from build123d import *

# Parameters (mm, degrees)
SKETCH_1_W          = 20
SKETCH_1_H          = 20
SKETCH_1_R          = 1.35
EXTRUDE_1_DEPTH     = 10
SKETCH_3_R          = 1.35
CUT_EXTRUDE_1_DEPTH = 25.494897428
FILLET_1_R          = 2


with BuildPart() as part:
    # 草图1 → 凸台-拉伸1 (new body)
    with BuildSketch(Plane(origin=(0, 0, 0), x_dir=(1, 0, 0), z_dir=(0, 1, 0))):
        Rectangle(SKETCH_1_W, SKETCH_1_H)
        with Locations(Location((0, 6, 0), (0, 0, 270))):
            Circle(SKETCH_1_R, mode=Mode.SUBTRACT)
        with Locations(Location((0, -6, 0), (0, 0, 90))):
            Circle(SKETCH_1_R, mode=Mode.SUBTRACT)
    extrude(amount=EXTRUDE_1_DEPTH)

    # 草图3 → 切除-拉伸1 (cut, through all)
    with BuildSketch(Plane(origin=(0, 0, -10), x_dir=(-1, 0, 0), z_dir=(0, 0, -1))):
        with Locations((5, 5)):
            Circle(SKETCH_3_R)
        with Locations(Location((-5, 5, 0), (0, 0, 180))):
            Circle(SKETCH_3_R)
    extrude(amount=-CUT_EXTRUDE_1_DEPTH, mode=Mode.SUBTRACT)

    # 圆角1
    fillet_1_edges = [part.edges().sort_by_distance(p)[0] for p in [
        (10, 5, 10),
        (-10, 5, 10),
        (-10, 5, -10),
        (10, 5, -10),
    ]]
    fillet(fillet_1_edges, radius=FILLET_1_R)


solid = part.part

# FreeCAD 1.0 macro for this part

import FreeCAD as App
import Part
import Sketcher

V = App.Vector
Q = App.Units.Quantity


def edges_at(feature, points):
    """Names of the edges that pass closest to the given points."""
    edges = feature.Shape.Edges
    near = lambda p: min(range(len(edges)), key=lambda i: edges[i].distToShape(Part.Vertex(*p))[0])
    return sorted({f"Edge{near(p) + 1}" for p in points})


def add_polygon(sketch, points):
    """Adds a closed chain of lines whose ends are joined by coincident constraints."""
    first, n = sketch.GeometryCount, len(points)
    for a, b in zip(points, points[1:] + points[:1]):
        sketch.addGeometry(Part.LineSegment(App.Vector(*a, 0), App.Vector(*b, 0)), False)
    for i in range(n):
        sketch.addConstraint(Sketcher.Constraint("Coincident", first + i, 2, first + (i + 1) % n, 1))

doc = App.newDocument("Part")
params = doc.addObject("Spreadsheet::Sheet", "Params")
for row, (alias, value) in enumerate([
    ("sketch1_diameter", "2.7 mm"),
    ("sketch1_width", "20 mm"),
    ("pad1_length", "10 mm"),
    ("sketch2_diameter", "2.7 mm"),
    ("fillet_radius", "2 mm"),
], start=1):
    params.set(f"A{row}", alias)
    params.set(f"B{row}", "=" + value)
    params.setAlias(f"B{row}", alias)

body = doc.addObject("PartDesign::Body", "Body")

sketch1 = doc.addObject("Sketcher::SketchObject", "Sketch")
body.addObject(sketch1)
sketch1.AttachmentSupport = (doc.XZ_Plane, [""])
sketch1.MapMode = "FlatFace"
add_polygon(sketch1, [(-10, -10), (-10, 10), (10, 10), (10, -10)])
sketch1.addGeometry(Part.Circle(V(0, 6, 0), V(0, 0, 1), 1.4), False)
sketch1.addGeometry(Part.Circle(V(0, -6, 0), V(0, 0, 1), 1.4), False)
sketch1.addConstraint(Sketcher.Constraint("Vertical", 0))
sketch1.addConstraint(Sketcher.Constraint("Horizontal", 1))
sketch1.addConstraint(Sketcher.Constraint("Vertical", 2))
sketch1.addConstraint(Sketcher.Constraint("Horizontal", 3))
sketch1.addConstraint(Sketcher.Constraint("Equal", 4, 5))
sketch1.addConstraint(Sketcher.Constraint("Symmetric", 4, 3, 5, 3, -1, 1))
sketch1.addConstraint(Sketcher.Constraint("Symmetric", 0, 2, 2, 2, -1, 1))
sketch1.addConstraint(Sketcher.Constraint("PointOnObject", 4, 3, -2))
sketch1.addConstraint(Sketcher.Constraint("Equal", 3, 0))
sketch1.addConstraint(Sketcher.Constraint("Diameter", 4, Q("2.7 mm")))
sketch1.addConstraint(Sketcher.Constraint("DistanceX", 1, 1, 1, 2, Q("20 mm")))
sketch1.addConstraint(Sketcher.Constraint("DistanceY", -1, 1, 4, 3, Q("6 mm")))
sketch1.setExpression("Constraints[13]", "Params.sketch1_diameter")
sketch1.setExpression("Constraints[14]", "Params.sketch1_width")
pad1 = doc.addObject("PartDesign::Pad", "Pad")
body.addObject(pad1)
pad1.Profile = sketch1
pad1.setExpression("Length", "Params.pad1_length")
pad1.Reversed = True

sketch2 = doc.addObject("Sketcher::SketchObject", "Sketch001")
body.addObject(sketch2)
sketch2.AttachmentSupport = (doc.XY_Plane, [""])
sketch2.MapMode = "FlatFace"
sketch2.AttachmentOffset = App.Placement(V(0, 0, -10), App.Rotation())
sketch2.addGeometry(Part.Circle(V(-5, 5, 0), V(0, 0, 1), 1.4), False)
sketch2.addGeometry(Part.Circle(V(5, 5, 0), V(0, 0, 1), 1.4), False)
sketch2.addConstraint(Sketcher.Constraint("Equal", 0, 1))
sketch2.addConstraint(Sketcher.Constraint("Symmetric", 0, 3, 1, 3, -2))
sketch2.addConstraint(Sketcher.Constraint("Diameter", 0, Q("2.7 mm")))
sketch2.addConstraint(Sketcher.Constraint("DistanceX", 0, 3, -1, 1, Q("5 mm")))
sketch2.addConstraint(Sketcher.Constraint("DistanceY", -1, 1, 0, 3, Q("5 mm")))
sketch2.setExpression("Constraints[2]", "Params.sketch2_diameter")
pocket1 = doc.addObject("PartDesign::Pocket", "Pocket")
body.addObject(pocket1)
pocket1.Profile = sketch2
pocket1.Type = "ThroughAll"
pocket1.Reversed = True
doc.recompute()

fillet = doc.addObject("PartDesign::Fillet", "Fillet")
body.addObject(fillet)
fillet.Base = (pocket1, edges_at(pocket1, [
    (10, 5, 10),
    (-10, 5, 10),
    (-10, 5, -10),
    (10, 5, -10),
]))
fillet.setExpression("Radius", "Params.fillet_radius")

doc.recompute()
